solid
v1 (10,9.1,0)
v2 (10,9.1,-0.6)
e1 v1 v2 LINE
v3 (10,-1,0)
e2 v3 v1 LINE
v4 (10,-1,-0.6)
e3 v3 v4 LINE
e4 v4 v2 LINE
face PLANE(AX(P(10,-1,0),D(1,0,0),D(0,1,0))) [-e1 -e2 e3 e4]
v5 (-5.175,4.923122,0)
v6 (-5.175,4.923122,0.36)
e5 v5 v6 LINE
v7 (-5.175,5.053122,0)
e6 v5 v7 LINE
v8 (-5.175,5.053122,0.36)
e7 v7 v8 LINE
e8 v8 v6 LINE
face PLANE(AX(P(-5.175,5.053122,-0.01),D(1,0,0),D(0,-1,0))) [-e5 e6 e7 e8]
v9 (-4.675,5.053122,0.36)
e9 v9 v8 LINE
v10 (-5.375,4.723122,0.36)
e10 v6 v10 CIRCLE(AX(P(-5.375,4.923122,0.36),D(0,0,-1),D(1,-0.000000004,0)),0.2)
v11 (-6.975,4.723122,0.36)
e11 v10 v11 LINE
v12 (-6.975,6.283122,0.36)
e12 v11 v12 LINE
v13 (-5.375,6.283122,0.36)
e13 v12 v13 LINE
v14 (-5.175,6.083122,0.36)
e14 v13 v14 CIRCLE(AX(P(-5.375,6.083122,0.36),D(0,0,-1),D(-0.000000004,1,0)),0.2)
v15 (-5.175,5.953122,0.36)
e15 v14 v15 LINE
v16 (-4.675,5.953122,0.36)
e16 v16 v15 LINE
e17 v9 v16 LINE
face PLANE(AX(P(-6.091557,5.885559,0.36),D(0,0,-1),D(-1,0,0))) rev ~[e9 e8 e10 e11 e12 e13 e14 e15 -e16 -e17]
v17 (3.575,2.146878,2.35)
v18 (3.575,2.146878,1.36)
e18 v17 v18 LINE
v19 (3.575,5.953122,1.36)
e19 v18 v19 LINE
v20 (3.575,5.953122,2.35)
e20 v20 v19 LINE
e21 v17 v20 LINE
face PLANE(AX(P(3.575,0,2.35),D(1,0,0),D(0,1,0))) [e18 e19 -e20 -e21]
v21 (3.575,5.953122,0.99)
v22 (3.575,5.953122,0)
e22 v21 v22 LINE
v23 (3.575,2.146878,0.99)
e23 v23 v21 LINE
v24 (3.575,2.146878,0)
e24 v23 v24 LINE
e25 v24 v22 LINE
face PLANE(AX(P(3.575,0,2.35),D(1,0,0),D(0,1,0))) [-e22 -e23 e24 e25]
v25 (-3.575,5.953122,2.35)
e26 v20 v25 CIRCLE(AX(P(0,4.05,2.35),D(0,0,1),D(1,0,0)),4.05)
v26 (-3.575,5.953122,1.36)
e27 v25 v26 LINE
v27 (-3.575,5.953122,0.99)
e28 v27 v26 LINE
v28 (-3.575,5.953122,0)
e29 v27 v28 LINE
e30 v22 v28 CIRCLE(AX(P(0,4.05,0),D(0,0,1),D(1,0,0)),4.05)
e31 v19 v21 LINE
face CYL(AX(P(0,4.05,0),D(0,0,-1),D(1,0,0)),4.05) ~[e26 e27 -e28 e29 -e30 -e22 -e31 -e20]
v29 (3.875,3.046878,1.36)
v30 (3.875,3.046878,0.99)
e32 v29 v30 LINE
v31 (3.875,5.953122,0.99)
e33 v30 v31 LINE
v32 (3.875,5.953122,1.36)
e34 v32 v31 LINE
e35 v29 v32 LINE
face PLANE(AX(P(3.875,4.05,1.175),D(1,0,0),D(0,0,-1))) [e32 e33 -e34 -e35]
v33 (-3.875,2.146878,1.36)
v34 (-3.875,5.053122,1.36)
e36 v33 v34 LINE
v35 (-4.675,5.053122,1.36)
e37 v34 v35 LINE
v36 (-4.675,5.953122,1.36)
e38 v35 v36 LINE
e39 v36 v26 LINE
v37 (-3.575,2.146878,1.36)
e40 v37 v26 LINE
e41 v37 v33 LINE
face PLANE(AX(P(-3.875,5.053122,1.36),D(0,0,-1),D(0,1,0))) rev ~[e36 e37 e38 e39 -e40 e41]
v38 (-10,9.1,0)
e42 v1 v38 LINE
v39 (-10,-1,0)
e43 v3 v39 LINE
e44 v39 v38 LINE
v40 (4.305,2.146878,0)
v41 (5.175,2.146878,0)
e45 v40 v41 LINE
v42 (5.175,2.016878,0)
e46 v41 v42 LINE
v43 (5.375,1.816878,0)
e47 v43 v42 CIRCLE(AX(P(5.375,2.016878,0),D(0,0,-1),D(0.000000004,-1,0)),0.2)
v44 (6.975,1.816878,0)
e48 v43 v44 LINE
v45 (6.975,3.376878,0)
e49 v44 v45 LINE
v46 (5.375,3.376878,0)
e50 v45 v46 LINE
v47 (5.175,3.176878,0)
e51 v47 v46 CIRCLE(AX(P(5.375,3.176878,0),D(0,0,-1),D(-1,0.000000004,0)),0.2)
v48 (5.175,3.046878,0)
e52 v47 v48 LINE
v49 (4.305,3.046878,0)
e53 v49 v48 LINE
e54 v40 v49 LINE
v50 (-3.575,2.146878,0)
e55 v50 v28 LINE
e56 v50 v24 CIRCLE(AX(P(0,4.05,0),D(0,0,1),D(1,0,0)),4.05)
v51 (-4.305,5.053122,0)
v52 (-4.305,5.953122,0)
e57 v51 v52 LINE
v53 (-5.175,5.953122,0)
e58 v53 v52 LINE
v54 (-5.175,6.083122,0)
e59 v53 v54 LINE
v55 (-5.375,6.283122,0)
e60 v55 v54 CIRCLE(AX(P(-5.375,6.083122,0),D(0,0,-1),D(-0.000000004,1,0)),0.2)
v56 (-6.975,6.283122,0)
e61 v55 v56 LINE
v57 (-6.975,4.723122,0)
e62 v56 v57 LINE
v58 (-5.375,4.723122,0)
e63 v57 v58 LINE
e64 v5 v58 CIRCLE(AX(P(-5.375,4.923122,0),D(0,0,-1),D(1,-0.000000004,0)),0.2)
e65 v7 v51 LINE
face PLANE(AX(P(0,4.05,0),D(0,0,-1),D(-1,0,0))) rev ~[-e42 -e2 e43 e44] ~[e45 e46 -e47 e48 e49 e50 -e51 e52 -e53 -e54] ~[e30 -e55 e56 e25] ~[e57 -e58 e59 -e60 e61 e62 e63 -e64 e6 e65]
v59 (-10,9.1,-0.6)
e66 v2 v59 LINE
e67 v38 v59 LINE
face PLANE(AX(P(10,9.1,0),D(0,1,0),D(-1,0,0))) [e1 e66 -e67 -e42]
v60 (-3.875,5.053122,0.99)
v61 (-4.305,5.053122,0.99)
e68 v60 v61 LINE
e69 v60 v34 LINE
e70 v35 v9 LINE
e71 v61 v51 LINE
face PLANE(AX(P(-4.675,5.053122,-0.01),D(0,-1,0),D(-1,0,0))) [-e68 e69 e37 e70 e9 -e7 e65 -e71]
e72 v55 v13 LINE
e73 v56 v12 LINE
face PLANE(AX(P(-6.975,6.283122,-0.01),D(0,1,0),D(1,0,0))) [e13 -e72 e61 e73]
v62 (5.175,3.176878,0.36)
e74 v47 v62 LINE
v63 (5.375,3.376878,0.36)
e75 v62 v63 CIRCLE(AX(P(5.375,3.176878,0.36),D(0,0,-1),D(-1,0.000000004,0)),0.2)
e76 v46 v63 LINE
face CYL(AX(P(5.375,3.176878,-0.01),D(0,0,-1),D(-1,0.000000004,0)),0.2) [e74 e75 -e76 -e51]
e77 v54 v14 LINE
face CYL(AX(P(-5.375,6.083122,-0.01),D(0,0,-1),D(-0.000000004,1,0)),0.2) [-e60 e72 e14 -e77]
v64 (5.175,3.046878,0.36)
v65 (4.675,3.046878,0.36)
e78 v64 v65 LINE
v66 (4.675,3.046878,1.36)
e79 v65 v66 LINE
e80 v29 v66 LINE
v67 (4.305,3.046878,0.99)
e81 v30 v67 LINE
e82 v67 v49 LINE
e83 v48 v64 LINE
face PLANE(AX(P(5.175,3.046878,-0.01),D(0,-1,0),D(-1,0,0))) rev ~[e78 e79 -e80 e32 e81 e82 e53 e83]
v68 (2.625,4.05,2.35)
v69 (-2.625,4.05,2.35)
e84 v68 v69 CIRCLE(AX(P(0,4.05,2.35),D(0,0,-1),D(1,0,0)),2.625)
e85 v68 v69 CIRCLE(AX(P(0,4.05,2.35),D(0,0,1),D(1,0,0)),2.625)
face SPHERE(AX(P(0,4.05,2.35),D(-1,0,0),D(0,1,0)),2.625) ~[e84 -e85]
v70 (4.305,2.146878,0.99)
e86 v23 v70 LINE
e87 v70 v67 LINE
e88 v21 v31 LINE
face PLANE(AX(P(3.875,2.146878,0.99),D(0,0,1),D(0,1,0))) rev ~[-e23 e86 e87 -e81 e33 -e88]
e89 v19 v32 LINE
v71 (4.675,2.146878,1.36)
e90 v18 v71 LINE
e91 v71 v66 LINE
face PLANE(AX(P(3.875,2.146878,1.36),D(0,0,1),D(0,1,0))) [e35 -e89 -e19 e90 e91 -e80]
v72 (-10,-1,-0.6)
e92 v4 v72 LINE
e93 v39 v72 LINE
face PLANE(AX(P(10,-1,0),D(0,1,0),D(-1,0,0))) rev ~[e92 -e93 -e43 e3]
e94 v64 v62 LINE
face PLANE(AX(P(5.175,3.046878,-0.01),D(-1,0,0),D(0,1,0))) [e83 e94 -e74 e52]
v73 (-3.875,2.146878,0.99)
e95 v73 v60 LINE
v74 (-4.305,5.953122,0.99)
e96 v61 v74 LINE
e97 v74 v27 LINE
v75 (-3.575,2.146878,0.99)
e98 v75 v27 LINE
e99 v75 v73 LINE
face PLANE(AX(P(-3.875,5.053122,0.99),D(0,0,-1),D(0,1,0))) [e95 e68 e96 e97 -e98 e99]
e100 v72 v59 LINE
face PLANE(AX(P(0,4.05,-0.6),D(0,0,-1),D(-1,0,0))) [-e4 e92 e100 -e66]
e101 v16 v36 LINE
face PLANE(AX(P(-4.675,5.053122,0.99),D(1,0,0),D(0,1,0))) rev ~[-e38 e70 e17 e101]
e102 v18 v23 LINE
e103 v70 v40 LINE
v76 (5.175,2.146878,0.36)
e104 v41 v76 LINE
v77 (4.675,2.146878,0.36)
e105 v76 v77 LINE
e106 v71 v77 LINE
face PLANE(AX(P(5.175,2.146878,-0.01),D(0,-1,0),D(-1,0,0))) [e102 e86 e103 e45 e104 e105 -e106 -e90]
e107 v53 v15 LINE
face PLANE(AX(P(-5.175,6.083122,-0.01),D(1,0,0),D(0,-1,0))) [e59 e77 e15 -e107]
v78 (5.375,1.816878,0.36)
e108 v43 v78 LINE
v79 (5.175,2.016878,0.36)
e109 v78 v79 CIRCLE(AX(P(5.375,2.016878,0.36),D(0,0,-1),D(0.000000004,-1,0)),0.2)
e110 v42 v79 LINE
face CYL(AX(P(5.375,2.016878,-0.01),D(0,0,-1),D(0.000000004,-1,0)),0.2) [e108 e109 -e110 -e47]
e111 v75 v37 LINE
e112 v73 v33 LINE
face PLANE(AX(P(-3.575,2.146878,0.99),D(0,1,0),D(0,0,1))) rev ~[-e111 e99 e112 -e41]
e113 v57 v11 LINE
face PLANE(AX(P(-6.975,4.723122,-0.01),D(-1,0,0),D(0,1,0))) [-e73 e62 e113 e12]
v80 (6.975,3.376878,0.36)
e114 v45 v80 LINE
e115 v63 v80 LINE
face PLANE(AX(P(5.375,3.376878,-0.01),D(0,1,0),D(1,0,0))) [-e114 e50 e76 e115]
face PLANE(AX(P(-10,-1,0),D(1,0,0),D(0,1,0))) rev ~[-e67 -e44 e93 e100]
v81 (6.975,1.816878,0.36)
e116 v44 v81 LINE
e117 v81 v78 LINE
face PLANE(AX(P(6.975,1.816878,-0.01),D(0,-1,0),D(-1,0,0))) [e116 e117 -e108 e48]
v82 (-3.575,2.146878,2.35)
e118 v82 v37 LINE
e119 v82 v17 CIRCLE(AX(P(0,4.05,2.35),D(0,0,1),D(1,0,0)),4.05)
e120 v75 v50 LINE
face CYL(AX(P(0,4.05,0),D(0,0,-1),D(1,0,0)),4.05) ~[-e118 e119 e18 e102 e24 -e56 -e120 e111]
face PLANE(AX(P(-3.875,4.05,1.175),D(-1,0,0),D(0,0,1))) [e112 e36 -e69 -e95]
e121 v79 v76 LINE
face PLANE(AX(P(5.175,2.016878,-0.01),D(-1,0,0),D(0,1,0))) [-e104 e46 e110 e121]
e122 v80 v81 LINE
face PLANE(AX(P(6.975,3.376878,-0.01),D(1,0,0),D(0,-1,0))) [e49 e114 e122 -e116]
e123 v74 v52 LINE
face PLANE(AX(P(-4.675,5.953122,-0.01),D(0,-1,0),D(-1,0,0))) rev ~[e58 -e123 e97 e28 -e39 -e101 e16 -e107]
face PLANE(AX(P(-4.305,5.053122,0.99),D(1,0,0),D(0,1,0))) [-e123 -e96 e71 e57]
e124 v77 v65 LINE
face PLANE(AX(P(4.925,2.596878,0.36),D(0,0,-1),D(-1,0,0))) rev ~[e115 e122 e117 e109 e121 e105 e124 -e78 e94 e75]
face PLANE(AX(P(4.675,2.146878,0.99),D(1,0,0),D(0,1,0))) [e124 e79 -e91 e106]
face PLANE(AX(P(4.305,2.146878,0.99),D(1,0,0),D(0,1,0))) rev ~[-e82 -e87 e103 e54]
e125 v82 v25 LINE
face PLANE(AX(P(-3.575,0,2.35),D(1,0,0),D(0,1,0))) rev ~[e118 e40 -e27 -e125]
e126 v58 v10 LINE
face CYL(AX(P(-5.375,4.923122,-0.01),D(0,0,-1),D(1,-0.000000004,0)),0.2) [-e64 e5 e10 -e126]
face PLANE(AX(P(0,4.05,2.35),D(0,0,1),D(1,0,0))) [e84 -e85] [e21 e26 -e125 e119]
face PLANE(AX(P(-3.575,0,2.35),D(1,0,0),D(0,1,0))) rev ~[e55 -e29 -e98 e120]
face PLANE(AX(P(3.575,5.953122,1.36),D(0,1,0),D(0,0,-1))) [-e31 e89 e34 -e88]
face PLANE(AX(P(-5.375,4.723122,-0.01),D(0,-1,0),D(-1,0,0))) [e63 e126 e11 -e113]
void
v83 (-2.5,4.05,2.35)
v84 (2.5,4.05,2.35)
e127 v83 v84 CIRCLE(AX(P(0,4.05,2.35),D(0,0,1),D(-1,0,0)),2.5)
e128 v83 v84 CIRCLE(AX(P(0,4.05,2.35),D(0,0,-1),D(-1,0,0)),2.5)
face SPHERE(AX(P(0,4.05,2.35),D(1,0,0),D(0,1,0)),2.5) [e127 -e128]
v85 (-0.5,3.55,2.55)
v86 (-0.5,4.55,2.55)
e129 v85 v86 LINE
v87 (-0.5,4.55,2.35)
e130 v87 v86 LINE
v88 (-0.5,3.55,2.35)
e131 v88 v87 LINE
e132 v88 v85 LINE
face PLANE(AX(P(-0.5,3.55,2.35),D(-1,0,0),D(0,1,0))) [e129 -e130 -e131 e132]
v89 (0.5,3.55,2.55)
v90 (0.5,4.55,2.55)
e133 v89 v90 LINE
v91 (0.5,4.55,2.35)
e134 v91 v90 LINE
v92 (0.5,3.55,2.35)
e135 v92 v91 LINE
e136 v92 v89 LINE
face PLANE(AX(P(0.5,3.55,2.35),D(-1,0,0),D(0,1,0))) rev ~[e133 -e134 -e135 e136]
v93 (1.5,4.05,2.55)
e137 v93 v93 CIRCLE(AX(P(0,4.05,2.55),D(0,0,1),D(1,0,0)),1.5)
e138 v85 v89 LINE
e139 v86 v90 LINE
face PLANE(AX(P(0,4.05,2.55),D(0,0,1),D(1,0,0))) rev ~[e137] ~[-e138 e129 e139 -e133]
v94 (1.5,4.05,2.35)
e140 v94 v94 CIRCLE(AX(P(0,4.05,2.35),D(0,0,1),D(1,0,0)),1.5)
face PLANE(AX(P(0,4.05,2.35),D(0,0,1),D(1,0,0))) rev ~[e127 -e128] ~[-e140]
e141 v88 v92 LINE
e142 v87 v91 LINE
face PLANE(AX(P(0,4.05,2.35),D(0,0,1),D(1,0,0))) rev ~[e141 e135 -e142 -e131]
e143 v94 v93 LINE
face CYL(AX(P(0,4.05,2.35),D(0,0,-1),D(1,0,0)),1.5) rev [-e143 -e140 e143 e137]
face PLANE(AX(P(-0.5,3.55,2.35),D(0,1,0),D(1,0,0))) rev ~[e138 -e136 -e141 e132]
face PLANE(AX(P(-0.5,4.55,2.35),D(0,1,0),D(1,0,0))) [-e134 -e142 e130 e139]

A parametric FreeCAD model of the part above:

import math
import FreeCAD as App
import Part
import Sketcher

doc = App.newDocument("Part")
body = doc.addObject("PartDesign::Body", "Body")

# Sketch on XY plane
sketch1 = body.newObject("Sketcher::SketchObject", "Sketch")
sketch1.AttachmentSupport = (doc.getObject("XY_Plane"), [""])
sketch1.MapMode = "FlatFace"
sketch1.addGeometry(Part.Circle(App.Vector(0, 4, 0), App.Vector(0, 0, 1), 4), False)
sketch1.addConstraint(Sketcher.Constraint("PointOnObject", 0, 3, -2))
sketch1.addConstraint(Sketcher.Constraint("Diameter", 0, 8.1))
sketch1.addConstraint(Sketcher.Constraint("DistanceY", -1, 1, 0, 3, 4.05))
pad1 = body.newObject("PartDesign::Pad", "Pad")
pad1.Profile = sketch1
pad1.Length = 2.35

# Sketch on XY plane
sketch2 = body.newObject("Sketcher::SketchObject", "Sketch001")
sketch2.AttachmentSupport = (doc.getObject("XY_Plane"), [""])
sketch2.MapMode = "FlatFace"
sketch2.AttachmentOffset = App.Placement(App.Vector(0, 0, 2.35), App.Rotation())
sketch2.addGeometry(Part.Circle(App.Vector(0, 4, 0), App.Vector(0, 0, 1), 1.5), False)
sketch2.addGeometry(Part.LineSegment(App.Vector(0.5, 3.5, 0), App.Vector(-0.5, 3.5, 0)), False)
sketch2.addGeometry(Part.LineSegment(App.Vector(-0.5, 3.5, 0), App.Vector(-0.5, 4.5, 0)), False)
sketch2.addGeometry(Part.LineSegment(App.Vector(-0.5, 4.5, 0), App.Vector(0.5, 4.5, 0)), False)
sketch2.addGeometry(Part.LineSegment(App.Vector(0.5, 4.5, 0), App.Vector(0.5, 3.5, 0)), False)
sketch2.addConstraint(Sketcher.Constraint("Coincident", 1, 2, 2, 1))
sketch2.addConstraint(Sketcher.Constraint("Coincident", 2, 2, 3, 1))
sketch2.addConstraint(Sketcher.Constraint("Coincident", 3, 2, 4, 1))
sketch2.addConstraint(Sketcher.Constraint("Coincident", 4, 2, 1, 1))
sketch2.addConstraint(Sketcher.Constraint("Horizontal", 1))
sketch2.addConstraint(Sketcher.Constraint("Vertical", 2))
sketch2.addConstraint(Sketcher.Constraint("Horizontal", 3))
sketch2.addConstraint(Sketcher.Constraint("Vertical", 4))
sketch2.addConstraint(Sketcher.Constraint("PointOnObject", 0, 3, -2))
sketch2.addConstraint(Sketcher.Constraint("Equal", 3, 2))
sketch2.addConstraint(Sketcher.Constraint("Diameter", 0, 3.0))
sketch2.addConstraint(Sketcher.Constraint("DistanceX", 1, 2, 1, 1, 1.0))
sketch2.addConstraint(Sketcher.Constraint("DistanceX", 1, 2, -1, 1, 0.5))
sketch2.addConstraint(Sketcher.Constraint("DistanceY", 1, 2, 0, 3, 0.5))
sketch2.addConstraint(Sketcher.Constraint("DistanceY", -1, 1, 0, 3, 4.05))
pad2 = body.newObject("PartDesign::Pad", "Pad001")
pad2.Profile = sketch2
pad2.Length = 0.2

# Sketch on XY plane
sketch3 = body.newObject("Sketcher::SketchObject", "Sketch002")
sketch3.AttachmentSupport = (doc.getObject("XY_Plane"), [""])
sketch3.MapMode = "FlatFace"
sketch3.AttachmentOffset = App.Placement(App.Vector(0, 0, 2.35), App.Rotation())
sketch3.addGeometry(Part.LineSegment(App.Vector(-2.62, 4.05, 0), App.Vector(-2.5, 4.05, 0)), False)
sketch3.addGeometry(Part.ArcOfCircle(Part.Circle(App.Vector(0, 4.05, 0), App.Vector(0, 0, 1), 2.5), math.radians(0), math.radians(180)), False)
sketch3.addGeometry(Part.LineSegment(App.Vector(2.5, 4.05, 0), App.Vector(2.62, 4.05, 0)), False)
sketch3.addGeometry(Part.ArcOfCircle(Part.Circle(App.Vector(0, 4.05, 0), App.Vector(0, 0, 1), 2.62), math.radians(0), math.radians(180)), False)
sketch3.addGeometry(Part.LineSegment(App.Vector(-2.62, 4.05, 0), App.Vector(2.62, 4.05, 0)), True)  # axis
sketch3.addConstraint(Sketcher.Constraint("Coincident", 0, 2, 1, 2))
sketch3.addConstraint(Sketcher.Constraint("Coincident", 1, 1, 2, 1))
sketch3.addConstraint(Sketcher.Constraint("Coincident", 2, 2, 3, 1))
sketch3.addConstraint(Sketcher.Constraint("Coincident", 3, 2, 0, 1))
sketch3.addConstraint(Sketcher.Constraint("Horizontal", 0))
sketch3.addConstraint(Sketcher.Constraint("Horizontal", 2))
sketch3.addConstraint(Sketcher.Constraint("Horizontal", 4))
sketch3.addConstraint(Sketcher.Constraint("Coincident", 3, 3, 1, 3))
sketch3.addConstraint(Sketcher.Constraint("Coincident", 4, 1, 3, 2))
sketch3.addConstraint(Sketcher.Constraint("Coincident", 4, 2, 2, 2))
sketch3.addConstraint(Sketcher.Constraint("PointOnObject", 1, 3, -2))
sketch3.addConstraint(Sketcher.Constraint("Horizontal", 3, 3, 0, 2))
sketch3.addConstraint(Sketcher.Constraint("Radius", 1, 2.5))
sketch3.addConstraint(Sketcher.Constraint("Radius", 3, 2.625))
sketch3.addConstraint(Sketcher.Constraint("DistanceY", -1, 1, 1, 3, 4.05))
revolution = body.newObject("PartDesign::Revolution", "Revolution")
revolution.Profile = sketch3
revolution.ReferenceAxis = (sketch3, ["Axis0"])
revolution.Angle = 180

# Sketch on XY plane
sketch4 = body.newObject("Sketcher::SketchObject", "Sketch003")
sketch4.AttachmentSupport = (doc.getObject("XY_Plane"), [""])
sketch4.MapMode = "FlatFace"
sketch4.AttachmentOffset = App.Placement(App.Vector(0, 0, 2.35), App.Rotation())
sketch4.addGeometry(Part.LineSegment(App.Vector(-4.05, 8.1, 0), App.Vector(-4.05, 0, 0)), False)
sketch4.addGeometry(Part.LineSegment(App.Vector(-4.05, 0, 0), App.Vector(-3.58, 0, 0)), False)
sketch4.addGeometry(Part.LineSegment(App.Vector(-3.58, 0, 0), App.Vector(-3.58, 8.1, 0)), False)
sketch4.addGeometry(Part.LineSegment(App.Vector(-3.58, 8.1, 0), App.Vector(-4.05, 8.1, 0)), False)
sketch4.addGeometry(Part.LineSegment(App.Vector(3.58, 8.1, 0), App.Vector(3.58, 0, 0)), False)
sketch4.addGeometry(Part.LineSegment(App.Vector(3.58, 0, 0), App.Vector(4.05, 0, 0)), False)
sketch4.addGeometry(Part.LineSegment(App.Vector(4.05, 0, 0), App.Vector(4.05, 8.1, 0)), False)
sketch4.addGeometry(Part.LineSegment(App.Vector(4.05, 8.1, 0), App.Vector(3.58, 8.1, 0)), False)
sketch4.addConstraint(Sketcher.Constraint("Coincident", 0, 2, 1, 1))
sketch4.addConstraint(Sketcher.Constraint("Coincident", 1, 2, 2, 1))
sketch4.addConstraint(Sketcher.Constraint("Coincident", 2, 2, 3, 1))
sketch4.addConstraint(Sketcher.Constraint("Coincident", 3, 2, 0, 1))
sketch4.addConstraint(Sketcher.Constraint("Coincident", 4, 2, 5, 1))
sketch4.addConstraint(Sketcher.Constraint("Coincident", 5, 2, 6, 1))
sketch4.addConstraint(Sketcher.Constraint("Coincident", 6, 2, 7, 1))
sketch4.addConstraint(Sketcher.Constraint("Coincident", 7, 2, 4, 1))
sketch4.addConstraint(Sketcher.Constraint("Vertical", 0))
sketch4.addConstraint(Sketcher.Constraint("Horizontal", 1))
sketch4.addConstraint(Sketcher.Constraint("Vertical", 2))
sketch4.addConstraint(Sketcher.Constraint("Horizontal", 3))
sketch4.addConstraint(Sketcher.Constraint("Vertical", 4))
sketch4.addConstraint(Sketcher.Constraint("Horizontal", 5))
sketch4.addConstraint(Sketcher.Constraint("Vertical", 6))
sketch4.addConstraint(Sketcher.Constraint("Horizontal", 7))
sketch4.addConstraint(Sketcher.Constraint("Symmetric", 1, 2, 4, 2, -1, 1))
sketch4.addConstraint(Sketcher.Constraint("Symmetric", 0, 2, 5, 2, -2))
sketch4.addConstraint(Sketcher.Constraint("Horizontal", 3, 2, 6, 2))
sketch4.addConstraint(Sketcher.Constraint("DistanceY", 0, 2, 0, 1, 8.1))
sketch4.addConstraint(Sketcher.Constraint("DistanceX", 0, 2, 5, 2, 8.1))
sketch4.addConstraint(Sketcher.Constraint("DistanceX", 1, 1, 1, 2, 0.475))
pocket1 = body.newObject("PartDesign::Pocket", "Pocket")
pocket1.Profile = sketch4
pocket1.Type = "ThroughAll"

# Sketch on YZ plane
sketch5 = body.newObject("Sketcher::SketchObject", "Sketch004")
sketch5.AttachmentSupport = (doc.getObject("YZ_Plane"), [""])
sketch5.MapMode = "FlatFace"
sketch5.AttachmentOffset = App.Placement(App.Vector(0, 0, -3.575), App.Rotation())
sketch5.addGeometry(Part.LineSegment(App.Vector(5.95, 0.99, 0), App.Vector(2.15, 0.99, 0)), False)
sketch5.addGeometry(Part.LineSegment(App.Vector(2.15, 0.99, 0), App.Vector(2.15, 1.36, 0)), False)
sketch5.addGeometry(Part.LineSegment(App.Vector(2.15, 1.36, 0), App.Vector(5.95, 1.36, 0)), False)
sketch5.addGeometry(Part.LineSegment(App.Vector(5.95, 1.36, 0), App.Vector(5.95, 0.99, 0)), False)
sketch5.addConstraint(Sketcher.Constraint("Coincident", 0, 2, 1, 1))
sketch5.addConstraint(Sketcher.Constraint("Coincident", 1, 2, 2, 1))
sketch5.addConstraint(Sketcher.Constraint("Coincident", 2, 2, 3, 1))
sketch5.addConstraint(Sketcher.Constraint("Coincident", 3, 2, 0, 1))
sketch5.addConstraint(Sketcher.Constraint("Horizontal", 0))
sketch5.addConstraint(Sketcher.Constraint("Vertical", 1))
sketch5.addConstraint(Sketcher.Constraint("Horizontal", 2))
sketch5.addConstraint(Sketcher.Constraint("Vertical", 3))
sketch5.addConstraint(Sketcher.Constraint("DistanceY", 1, 1, 1, 2, 0.37))
sketch5.addConstraint(Sketcher.Constraint("DistanceY", -1, 1, 0, 2, 0.99))
sketch5.addConstraint(Sketcher.Constraint("DistanceX", 0, 2, 0, 1, 3.806245))
sketch5.addConstraint(Sketcher.Constraint("DistanceX", -1, 1, 0, 2, 2.146878))
pad3 = body.newObject("PartDesign::Pad", "Pad002")
pad3.Profile = sketch5
pad3.Length = 0.3
pad3.Reversed = True

# Sketch on YZ plane
sketch6 = body.newObject("Sketcher::SketchObject", "Sketch005")
sketch6.AttachmentSupport = (doc.getObject("YZ_Plane"), [""])
sketch6.MapMode = "FlatFace"
sketch6.AttachmentOffset = App.Placement(App.Vector(0, 0, -3.875), App.Rotation())
sketch6.addGeometry(Part.LineSegment(App.Vector(5.95, 0.99, 0), App.Vector(5.05, 0.99, 0)), False)
sketch6.addGeometry(Part.LineSegment(App.Vector(5.05, 0.99, 0), App.Vector(5.05, 1.36, 0)), False)
sketch6.addGeometry(Part.LineSegment(App.Vector(5.05, 1.36, 0), App.Vector(5.95, 1.36, 0)), False)
sketch6.addGeometry(Part.LineSegment(App.Vector(5.95, 1.36, 0), App.Vector(5.95, 0.99, 0)), False)
sketch6.addConstraint(Sketcher.Constraint("Coincident", 0, 2, 1, 1))
sketch6.addConstraint(Sketcher.Constraint("Coincident", 1, 2, 2, 1))
sketch6.addConstraint(Sketcher.Constraint("Coincident", 2, 2, 3, 1))
sketch6.addConstraint(Sketcher.Constraint("Coincident", 3, 2, 0, 1))
sketch6.addConstraint(Sketcher.Constraint("Horizontal", 0))
sketch6.addConstraint(Sketcher.Constraint("Vertical", 1))
sketch6.addConstraint(Sketcher.Constraint("Horizontal", 2))
sketch6.addConstraint(Sketcher.Constraint("Vertical", 3))
sketch6.addConstraint(Sketcher.Constraint("DistanceX", 0, 2, 0, 1, 0.9))
sketch6.addConstraint(Sketcher.Constraint("DistanceY", 1, 1, 1, 2, 0.37))
sketch6.addConstraint(Sketcher.Constraint("DistanceY", -1, 1, 0, 2, 0.99))
sketch6.addConstraint(Sketcher.Constraint("DistanceX", -1, 1, 0, 2, 5.053122))
pad4 = body.newObject("PartDesign::Pad", "Pad003")
pad4.Profile = sketch6
pad4.Length = 0.8
pad4.Reversed = True

# Sketch on XY plane
sketch7 = body.newObject("Sketcher::SketchObject", "Sketch006")
sketch7.AttachmentSupport = (doc.getObject("XY_Plane"), [""])
sketch7.MapMode = "FlatFace"
sketch7.AttachmentOffset = App.Placement(App.Vector(0, 0, 0.99), App.Rotation())
sketch7.addGeometry(Part.LineSegment(App.Vector(-4.3, 5.95, 0), App.Vector(-4.3, 5.05, 0)), False)
sketch7.addGeometry(Part.LineSegment(App.Vector(-4.3, 5.05, 0), App.Vector(-4.67, 5.05, 0)), False)
sketch7.addGeometry(Part.LineSegment(App.Vector(-4.67, 5.05, 0), App.Vector(-4.67, 5.95, 0)), False)
sketch7.addGeometry(Part.LineSegment(App.Vector(-4.67, 5.95, 0), App.Vector(-4.3, 5.95, 0)), False)
sketch7.addConstraint(Sketcher.Constraint("Coincident", 0, 2, 1, 1))
sketch7.addConstraint(Sketcher.Constraint("Coincident", 1, 2, 2, 1))
sketch7.addConstraint(Sketcher.Constraint("Coincident", 2, 2, 3, 1))
sketch7.addConstraint(Sketcher.Constraint("Coincident", 3, 2, 0, 1))
sketch7.addConstraint(Sketcher.Constraint("Vertical", 0))
sketch7.addConstraint(Sketcher.Constraint("Horizontal", 1))
sketch7.addConstraint(Sketcher.Constraint("Vertical", 2))
sketch7.addConstraint(Sketcher.Constraint("Horizontal", 3))
sketch7.addConstraint(Sketcher.Constraint("DistanceY", 0, 2, 0, 1, 0.9))
sketch7.addConstraint(Sketcher.Constraint("DistanceX", 1, 2, 1, 1, 0.37))
sketch7.addConstraint(Sketcher.Constraint("DistanceX", 0, 2, -1, 1, 4.305))
sketch7.addConstraint(Sketcher.Constraint("DistanceY", -1, 1, 0, 2, 5.053122))
pad5 = body.newObject("PartDesign::Pad", "Pad004")
pad5.Profile = sketch7
pad5.Length = 1
pad5.Reversed = True

# Sketch on XY plane
sketch8 = body.newObject("Sketcher::SketchObject", "Sketch007")
sketch8.AttachmentSupport = (doc.getObject("XY_Plane"), [""])
sketch8.MapMode = "FlatFace"
sketch8.AttachmentOffset = App.Placement(App.Vector(0, 0, -0.01), App.Rotation())
sketch8.addGeometry(Part.LineSegment(App.Vector(-5.17, 6.08, 0), App.Vector(-5.17, 5.95, 0)), False)
sketch8.addGeometry(Part.LineSegment(App.Vector(-5.17, 5.95, 0), App.Vector(-4.67, 5.95, 0)), False)
sketch8.addGeometry(Part.LineSegment(App.Vector(-4.67, 5.95, 0), App.Vector(-4.67, 5.05, 0)), False)
sketch8.addGeometry(Part.LineSegment(App.Vector(-4.67, 5.05, 0), App.Vector(-5.17, 5.05, 0)), False)
sketch8.addGeometry(Part.LineSegment(App.Vector(-5.17, 5.05, 0), App.Vector(-5.17, 4.92, 0)), False)
sketch8.addGeometry(Part.ArcOfCircle(Part.Circle(App.Vector(-5.38, 4.92, 0), App.Vector(0, 0, 1), 0.2), math.radians(-90), math.radians(0)), False)
sketch8.addGeometry(Part.LineSegment(App.Vector(-5.38, 4.72, 0), App.Vector(-6.97, 4.72, 0)), False)
sketch8.addGeometry(Part.LineSegment(App.Vector(-6.97, 4.72, 0), App.Vector(-6.97, 6.28, 0)), False)
sketch8.addGeometry(Part.LineSegment(App.Vector(-6.97, 6.28, 0), App.Vector(-5.38, 6.28, 0)), False)
sketch8.addGeometry(Part.ArcOfCircle(Part.Circle(App.Vector(-5.37, 6.08, 0), App.Vector(0, 0, 1), 0.2), math.radians(0), math.radians(90)), False)
sketch8.addConstraint(Sketcher.Constraint("Coincident", 0, 2, 1, 1))
sketch8.addConstraint(Sketcher.Constraint("Coincident", 1, 2, 2, 1))
sketch8.addConstraint(Sketcher.Constraint("Coincident", 2, 2, 3, 1))
sketch8.addConstraint(Sketcher.Constraint("Coincident", 3, 2, 4, 1))
sketch8.addConstraint(Sketcher.Constraint("Tangent", 4, 2, 5, 2))
sketch8.addConstraint(Sketcher.Constraint("Tangent", 5, 1, 6, 1))
sketch8.addConstraint(Sketcher.Constraint("Coincident", 6, 2, 7, 1))
sketch8.addConstraint(Sketcher.Constraint("Coincident", 7, 2, 8, 1))
sketch8.addConstraint(Sketcher.Constraint("Tangent", 8, 2, 9, 2))
sketch8.addConstraint(Sketcher.Constraint("Tangent", 9, 1, 0, 1))
sketch8.addConstraint(Sketcher.Constraint("Vertical", 0))
sketch8.addConstraint(Sketcher.Constraint("Horizontal", 1))
sketch8.addConstraint(Sketcher.Constraint("Vertical", 2))
sketch8.addConstraint(Sketcher.Constraint("Horizontal", 3))
sketch8.addConstraint(Sketcher.Constraint("Vertical", 4))
sketch8.addConstraint(Sketcher.Constraint("Horizontal", 6))
sketch8.addConstraint(Sketcher.Constraint("Vertical", 7))
sketch8.addConstraint(Sketcher.Constraint("Horizontal", 8))
sketch8.addConstraint(Sketcher.Constraint("Equal", 5, 9))
sketch8.addConstraint(Sketcher.Constraint("Vertical", 5, 3, 9, 3))
sketch8.addConstraint(Sketcher.Constraint("Equal", 0, 4))
sketch8.addConstraint(Sketcher.Constraint("Radius", 5, 0.2))
sketch8.addConstraint(Sketcher.Constraint("DistanceX", 1, 1, 1, 2, 0.5))
sketch8.addConstraint(Sketcher.Constraint("DistanceX", 6, 2, 6, 1, 1.6))
sketch8.addConstraint(Sketcher.Constraint("DistanceY", 2, 2, 2, 1, 0.9))
sketch8.addConstraint(Sketcher.Constraint("DistanceY", 0, 2, 0, 1, 0.13))
sketch8.addConstraint(Sketcher.Constraint("DistanceX", 5, 3, -1, 1, 5.375))
sketch8.addConstraint(Sketcher.Constraint("DistanceY", -1, 1, 5, 3, 4.923122))
pad6 = body.newObject("PartDesign::Pad", "Pad005")
pad6.Profile = sketch8
pad6.Length = 0.37

# Sketch on YZ plane
sketch9 = body.newObject("Sketcher::SketchObject", "Sketch008")
sketch9.AttachmentSupport = (doc.getObject("YZ_Plane"), [""])
sketch9.MapMode = "FlatFace"
sketch9.AttachmentOffset = App.Placement(App.Vector(0, 0, 3.575), App.Rotation())
sketch9.addGeometry(Part.LineSegment(App.Vector(5.95, 1.36, 0), App.Vector(2.15, 1.36, 0)), False)
sketch9.addGeometry(Part.LineSegment(App.Vector(2.15, 1.36, 0), App.Vector(2.15, 0.99, 0)), False)
sketch9.addGeometry(Part.LineSegment(App.Vector(2.15, 0.99, 0), App.Vector(5.95, 0.99, 0)), False)
sketch9.addGeometry(Part.LineSegment(App.Vector(5.95, 0.99, 0), App.Vector(5.95, 1.36, 0)), False)
sketch9.addConstraint(Sketcher.Constraint("Coincident", 0, 2, 1, 1))
sketch9.addConstraint(Sketcher.Constraint("Coincident", 1, 2, 2, 1))
sketch9.addConstraint(Sketcher.Constraint("Coincident", 2, 2, 3, 1))
sketch9.addConstraint(Sketcher.Constraint("Coincident", 3, 2, 0, 1))
sketch9.addConstraint(Sketcher.Constraint("Horizontal", 0))
sketch9.addConstraint(Sketcher.Constraint("Vertical", 1))
sketch9.addConstraint(Sketcher.Constraint("Horizontal", 2))
sketch9.addConstraint(Sketcher.Constraint("Vertical", 3))
sketch9.addConstraint(Sketcher.Constraint("DistanceY", 1, 2, 1, 1, 0.37))
sketch9.addConstraint(Sketcher.Constraint("DistanceY", -1, 1, 0, 2, 1.36))
sketch9.addConstraint(Sketcher.Constraint("DistanceX", 0, 2, 0, 1, 3.806245))
sketch9.addConstraint(Sketcher.Constraint("DistanceX", -1, 1, 0, 2, 2.146878))
pad7 = body.newObject("PartDesign::Pad", "Pad006")
pad7.Profile = sketch9
pad7.Length = 0.3

# Sketch on YZ plane
sketch10 = body.newObject("Sketcher::SketchObject", "Sketch009")
sketch10.AttachmentSupport = (doc.getObject("YZ_Plane"), [""])
sketch10.MapMode = "FlatFace"
sketch10.AttachmentOffset = App.Placement(App.Vector(0, 0, 3.875), App.Rotation())
sketch10.addGeometry(Part.LineSegment(App.Vector(3.05, 1.36, 0), App.Vector(2.15, 1.36, 0)), False)
sketch10.addGeometry(Part.LineSegment(App.Vector(2.15, 1.36, 0), App.Vector(2.15, 0.99, 0)), False)
sketch10.addGeometry(Part.LineSegment(App.Vector(2.15, 0.99, 0), App.Vector(3.05, 0.99, 0)), False)
sketch10.addGeometry(Part.LineSegment(App.Vector(3.05, 0.99, 0), App.Vector(3.05, 1.36, 0)), False)
sketch10.addConstraint(Sketcher.Constraint("Coincident", 0, 2, 1, 1))
sketch10.addConstraint(Sketcher.Constraint("Coincident", 1, 2, 2, 1))
sketch10.addConstraint(Sketcher.Constraint("Coincident", 2, 2, 3, 1))
sketch10.addConstraint(Sketcher.Constraint("Coincident", 3, 2, 0, 1))
sketch10.addConstraint(Sketcher.Constraint("Horizontal", 0))
sketch10.addConstraint(Sketcher.Constraint("Vertical", 1))
sketch10.addConstraint(Sketcher.Constraint("Horizontal", 2))
sketch10.addConstraint(Sketcher.Constraint("Vertical", 3))
sketch10.addConstraint(Sketcher.Constraint("DistanceX", 0, 2, 0, 1, 0.9))
sketch10.addConstraint(Sketcher.Constraint("DistanceY", 1, 2, 1, 1, 0.37))
sketch10.addConstraint(Sketcher.Constraint("DistanceY", -1, 1, 0, 2, 1.36))
sketch10.addConstraint(Sketcher.Constraint("DistanceX", -1, 1, 0, 2, 2.146878))
pad8 = body.newObject("PartDesign::Pad", "Pad007")
pad8.Profile = sketch10
pad8.Length = 0.8

# Sketch on XY plane
sketch11 = body.newObject("Sketcher::SketchObject", "Sketch010")
sketch11.AttachmentSupport = (doc.getObject("XY_Plane"), [""])
sketch11.MapMode = "FlatFace"
sketch11.AttachmentOffset = App.Placement(App.Vector(0, 0, 0.99), App.Rotation())
sketch11.addGeometry(Part.LineSegment(App.Vector(4.67, 3.05, 0), App.Vector(4.67, 2.15, 0)), False)
sketch11.addGeometry(Part.LineSegment(App.Vector(4.67, 2.15, 0), App.Vector(4.3, 2.15, 0)), False)
sketch11.addGeometry(Part.LineSegment(App.Vector(4.3, 2.15, 0), App.Vector(4.3, 3.05, 0)), False)
sketch11.addGeometry(Part.LineSegment(App.Vector(4.3, 3.05, 0), App.Vector(4.67, 3.05, 0)), False)
sketch11.addConstraint(Sketcher.Constraint("Coincident", 0, 2, 1, 1))
sketch11.addConstraint(Sketcher.Constraint("Coincident", 1, 2, 2, 1))
sketch11.addConstraint(Sketcher.Constraint("Coincident", 2, 2, 3, 1))
sketch11.addConstraint(Sketcher.Constraint("Coincident", 3, 2, 0, 1))
sketch11.addConstraint(Sketcher.Constraint("Vertical", 0))
sketch11.addConstraint(Sketcher.Constraint("Horizontal", 1))
sketch11.addConstraint(Sketcher.Constraint("Vertical", 2))
sketch11.addConstraint(Sketcher.Constraint("Horizontal", 3))
sketch11.addConstraint(Sketcher.Constraint("DistanceY", 0, 2, 0, 1, 0.9))
sketch11.addConstraint(Sketcher.Constraint("DistanceX", 1, 2, 1, 1, 0.37))
sketch11.addConstraint(Sketcher.Constraint("DistanceX", -1, 1, 0, 2, 4.675))
sketch11.addConstraint(Sketcher.Constraint("DistanceY", -1, 1, 0, 2, 2.146878))
pad9 = body.newObject("PartDesign::Pad", "Pad008")
pad9.Profile = sketch11
pad9.Length = 1
pad9.Reversed = True

# Sketch on XY plane
sketch12 = body.newObject("Sketcher::SketchObject", "Sketch011")
sketch12.AttachmentSupport = (doc.getObject("XY_Plane"), [""])
sketch12.MapMode = "FlatFace"
sketch12.AttachmentOffset = App.Placement(App.Vector(0, 0, -0.01), App.Rotation())
sketch12.addGeometry(Part.LineSegment(App.Vector(6.97, 1.82, 0), App.Vector(5.38, 1.82, 0)), False)
sketch12.addGeometry(Part.ArcOfCircle(Part.Circle(App.Vector(5.37, 2.02, 0), App.Vector(0, 0, 1), 0.2), math.radians(180), math.radians(270)), False)
sketch12.addGeometry(Part.LineSegment(App.Vector(5.17, 2.02, 0), App.Vector(5.17, 2.15, 0)), False)
sketch12.addGeometry(Part.LineSegment(App.Vector(5.17, 2.15, 0), App.Vector(4.67, 2.15, 0)), False)
sketch12.addGeometry(Part.LineSegment(App.Vector(4.67, 2.15, 0), App.Vector(4.67, 3.05, 0)), False)
sketch12.addGeometry(Part.LineSegment(App.Vector(4.67, 3.05, 0), App.Vector(5.17, 3.05, 0)), False)
sketch12.addGeometry(Part.LineSegment(App.Vector(5.17, 3.05, 0), App.Vector(5.17, 3.18, 0)), False)
sketch12.addGeometry(Part.ArcOfCircle(Part.Circle(App.Vector(5.38, 3.18, 0), App.Vector(0, 0, 1), 0.2), math.radians(90), math.radians(180)), False)
sketch12.addGeometry(Part.LineSegment(App.Vector(5.38, 3.38, 0), App.Vector(6.97, 3.38, 0)), False)
sketch12.addGeometry(Part.LineSegment(App.Vector(6.97, 3.38, 0), App.Vector(6.97, 1.82, 0)), False)
sketch12.addConstraint(Sketcher.Constraint("Tangent", 0, 2, 1, 2))
sketch12.addConstraint(Sketcher.Constraint("Tangent", 1, 1, 2, 1))
sketch12.addConstraint(Sketcher.Constraint("Coincident", 2, 2, 3, 1))
sketch12.addConstraint(Sketcher.Constraint("Coincident", 3, 2, 4, 1))
sketch12.addConstraint(Sketcher.Constraint("Coincident", 4, 2, 5, 1))
sketch12.addConstraint(Sketcher.Constraint("Coincident", 5, 2, 6, 1))
sketch12.addConstraint(Sketcher.Constraint("Tangent", 6, 2, 7, 2))
sketch12.addConstraint(Sketcher.Constraint("Tangent", 7, 1, 8, 1))
sketch12.addConstraint(Sketcher.Constraint("Coincident", 8, 2, 9, 1))
sketch12.addConstraint(Sketcher.Constraint("Coincident", 9, 2, 0, 1))
sketch12.addConstraint(Sketcher.Constraint("Horizontal", 0))
sketch12.addConstraint(Sketcher.Constraint("Vertical", 2))
sketch12.addConstraint(Sketcher.Constraint("Horizontal", 3))
sketch12.addConstraint(Sketcher.Constraint("Vertical", 4))
sketch12.addConstraint(Sketcher.Constraint("Horizontal", 5))
sketch12.addConstraint(Sketcher.Constraint("Vertical", 6))
sketch12.addConstraint(Sketcher.Constraint("Horizontal", 8))
sketch12.addConstraint(Sketcher.Constraint("Vertical", 9))
sketch12.addConstraint(Sketcher.Constraint("Equal", 1, 7))
sketch12.addConstraint(Sketcher.Constraint("Vertical", 1, 3, 7, 3))
sketch12.addConstraint(Sketcher.Constraint("Equal", 2, 6))
sketch12.addConstraint(Sketcher.Constraint("Radius", 1, 0.2))
sketch12.addConstraint(Sketcher.Constraint("DistanceX", 0, 2, 0, 1, 1.6))
sketch12.addConstraint(Sketcher.Constraint("DistanceX", 3, 2, 3, 1, 0.5))
sketch12.addConstraint(Sketcher.Constraint("DistanceY", 4, 1, 4, 2, 0.9))
sketch12.addConstraint(Sketcher.Constraint("DistanceY", 2, 1, 2, 2, 0.13))
sketch12.addConstraint(Sketcher.Constraint("DistanceX", -1, 1, 1, 3, 5.375))
sketch12.addConstraint(Sketcher.Constraint("DistanceY", -1, 1, 1, 3, 2.016878))
pad10 = body.newObject("PartDesign::Pad", "Pad009")
pad10.Profile = sketch12
pad10.Length = 0.37

# Sketch on XY plane
sketch13 = body.newObject("Sketcher::SketchObject", "Sketch012")
sketch13.AttachmentSupport = (doc.getObject("XY_Plane"), [""])
sketch13.MapMode = "FlatFace"
sketch13.addGeometry(Part.Circle(App.Vector(0, 4, 0), App.Vector(0, 0, 1), 2.8), False)
sketch13.addConstraint(Sketcher.Constraint("PointOnObject", 0, 3, -2))
sketch13.addConstraint(Sketcher.Constraint("Diameter", 0, 5.5))
sketch13.addConstraint(Sketcher.Constraint("DistanceY", -1, 1, 0, 3, 4.05))
pad11 = body.newObject("PartDesign::Pad", "Pad010")
pad11.Profile = sketch13
pad11.Length = 0.1
pad11.Reversed = True

# Sketch on XY plane
sketch14 = body.newObject("Sketcher::SketchObject", "Sketch013")
sketch14.AttachmentSupport = (doc.getObject("XY_Plane"), [""])
sketch14.MapMode = "FlatFace"
sketch14.addGeometry(Part.LineSegment(App.Vector(10, 9, 0), App.Vector(10, -1, 0)), False)
sketch14.addGeometry(Part.LineSegment(App.Vector(10, -1, 0), App.Vector(-10, -1, 0)), False)
sketch14.addGeometry(Part.LineSegment(App.Vector(-10, -1, 0), App.Vector(-10, 9, 0)), False)
sketch14.addGeometry(Part.LineSegment(App.Vector(-10, 9, 0), App.Vector(10, 9, 0)), False)
sketch14.addConstraint(Sketcher.Constraint("Coincident", 0, 2, 1, 1))
sketch14.addConstraint(Sketcher.Constraint("Coincident", 1, 2, 2, 1))
sketch14.addConstraint(Sketcher.Constraint("Coincident", 2, 2, 3, 1))
sketch14.addConstraint(Sketcher.Constraint("Coincident", 3, 2, 0, 1))
sketch14.addConstraint(Sketcher.Constraint("Vertical", 0))
sketch14.addConstraint(Sketcher.Constraint("Horizontal", 1))
sketch14.addConstraint(Sketcher.Constraint("Vertical", 2))
sketch14.addConstraint(Sketcher.Constraint("Horizontal", 3))
sketch14.addConstraint(Sketcher.Constraint("DistanceX", 1, 2, 1, 1, 20.0))
sketch14.addConstraint(Sketcher.Constraint("DistanceY", 0, 2, 0, 1, 10.1))
sketch14.addConstraint(Sketcher.Constraint("DistanceX", -1, 1, 0, 2, 10.0))
sketch14.addConstraint(Sketcher.Constraint("DistanceY", 0, 2, -1, 1, 1.0))
pad12 = body.newObject("PartDesign::Pad", "Pad011")
pad12.Profile = sketch14
pad12.Length = 0.6
pad12.Reversed = True

doc.recompute()
